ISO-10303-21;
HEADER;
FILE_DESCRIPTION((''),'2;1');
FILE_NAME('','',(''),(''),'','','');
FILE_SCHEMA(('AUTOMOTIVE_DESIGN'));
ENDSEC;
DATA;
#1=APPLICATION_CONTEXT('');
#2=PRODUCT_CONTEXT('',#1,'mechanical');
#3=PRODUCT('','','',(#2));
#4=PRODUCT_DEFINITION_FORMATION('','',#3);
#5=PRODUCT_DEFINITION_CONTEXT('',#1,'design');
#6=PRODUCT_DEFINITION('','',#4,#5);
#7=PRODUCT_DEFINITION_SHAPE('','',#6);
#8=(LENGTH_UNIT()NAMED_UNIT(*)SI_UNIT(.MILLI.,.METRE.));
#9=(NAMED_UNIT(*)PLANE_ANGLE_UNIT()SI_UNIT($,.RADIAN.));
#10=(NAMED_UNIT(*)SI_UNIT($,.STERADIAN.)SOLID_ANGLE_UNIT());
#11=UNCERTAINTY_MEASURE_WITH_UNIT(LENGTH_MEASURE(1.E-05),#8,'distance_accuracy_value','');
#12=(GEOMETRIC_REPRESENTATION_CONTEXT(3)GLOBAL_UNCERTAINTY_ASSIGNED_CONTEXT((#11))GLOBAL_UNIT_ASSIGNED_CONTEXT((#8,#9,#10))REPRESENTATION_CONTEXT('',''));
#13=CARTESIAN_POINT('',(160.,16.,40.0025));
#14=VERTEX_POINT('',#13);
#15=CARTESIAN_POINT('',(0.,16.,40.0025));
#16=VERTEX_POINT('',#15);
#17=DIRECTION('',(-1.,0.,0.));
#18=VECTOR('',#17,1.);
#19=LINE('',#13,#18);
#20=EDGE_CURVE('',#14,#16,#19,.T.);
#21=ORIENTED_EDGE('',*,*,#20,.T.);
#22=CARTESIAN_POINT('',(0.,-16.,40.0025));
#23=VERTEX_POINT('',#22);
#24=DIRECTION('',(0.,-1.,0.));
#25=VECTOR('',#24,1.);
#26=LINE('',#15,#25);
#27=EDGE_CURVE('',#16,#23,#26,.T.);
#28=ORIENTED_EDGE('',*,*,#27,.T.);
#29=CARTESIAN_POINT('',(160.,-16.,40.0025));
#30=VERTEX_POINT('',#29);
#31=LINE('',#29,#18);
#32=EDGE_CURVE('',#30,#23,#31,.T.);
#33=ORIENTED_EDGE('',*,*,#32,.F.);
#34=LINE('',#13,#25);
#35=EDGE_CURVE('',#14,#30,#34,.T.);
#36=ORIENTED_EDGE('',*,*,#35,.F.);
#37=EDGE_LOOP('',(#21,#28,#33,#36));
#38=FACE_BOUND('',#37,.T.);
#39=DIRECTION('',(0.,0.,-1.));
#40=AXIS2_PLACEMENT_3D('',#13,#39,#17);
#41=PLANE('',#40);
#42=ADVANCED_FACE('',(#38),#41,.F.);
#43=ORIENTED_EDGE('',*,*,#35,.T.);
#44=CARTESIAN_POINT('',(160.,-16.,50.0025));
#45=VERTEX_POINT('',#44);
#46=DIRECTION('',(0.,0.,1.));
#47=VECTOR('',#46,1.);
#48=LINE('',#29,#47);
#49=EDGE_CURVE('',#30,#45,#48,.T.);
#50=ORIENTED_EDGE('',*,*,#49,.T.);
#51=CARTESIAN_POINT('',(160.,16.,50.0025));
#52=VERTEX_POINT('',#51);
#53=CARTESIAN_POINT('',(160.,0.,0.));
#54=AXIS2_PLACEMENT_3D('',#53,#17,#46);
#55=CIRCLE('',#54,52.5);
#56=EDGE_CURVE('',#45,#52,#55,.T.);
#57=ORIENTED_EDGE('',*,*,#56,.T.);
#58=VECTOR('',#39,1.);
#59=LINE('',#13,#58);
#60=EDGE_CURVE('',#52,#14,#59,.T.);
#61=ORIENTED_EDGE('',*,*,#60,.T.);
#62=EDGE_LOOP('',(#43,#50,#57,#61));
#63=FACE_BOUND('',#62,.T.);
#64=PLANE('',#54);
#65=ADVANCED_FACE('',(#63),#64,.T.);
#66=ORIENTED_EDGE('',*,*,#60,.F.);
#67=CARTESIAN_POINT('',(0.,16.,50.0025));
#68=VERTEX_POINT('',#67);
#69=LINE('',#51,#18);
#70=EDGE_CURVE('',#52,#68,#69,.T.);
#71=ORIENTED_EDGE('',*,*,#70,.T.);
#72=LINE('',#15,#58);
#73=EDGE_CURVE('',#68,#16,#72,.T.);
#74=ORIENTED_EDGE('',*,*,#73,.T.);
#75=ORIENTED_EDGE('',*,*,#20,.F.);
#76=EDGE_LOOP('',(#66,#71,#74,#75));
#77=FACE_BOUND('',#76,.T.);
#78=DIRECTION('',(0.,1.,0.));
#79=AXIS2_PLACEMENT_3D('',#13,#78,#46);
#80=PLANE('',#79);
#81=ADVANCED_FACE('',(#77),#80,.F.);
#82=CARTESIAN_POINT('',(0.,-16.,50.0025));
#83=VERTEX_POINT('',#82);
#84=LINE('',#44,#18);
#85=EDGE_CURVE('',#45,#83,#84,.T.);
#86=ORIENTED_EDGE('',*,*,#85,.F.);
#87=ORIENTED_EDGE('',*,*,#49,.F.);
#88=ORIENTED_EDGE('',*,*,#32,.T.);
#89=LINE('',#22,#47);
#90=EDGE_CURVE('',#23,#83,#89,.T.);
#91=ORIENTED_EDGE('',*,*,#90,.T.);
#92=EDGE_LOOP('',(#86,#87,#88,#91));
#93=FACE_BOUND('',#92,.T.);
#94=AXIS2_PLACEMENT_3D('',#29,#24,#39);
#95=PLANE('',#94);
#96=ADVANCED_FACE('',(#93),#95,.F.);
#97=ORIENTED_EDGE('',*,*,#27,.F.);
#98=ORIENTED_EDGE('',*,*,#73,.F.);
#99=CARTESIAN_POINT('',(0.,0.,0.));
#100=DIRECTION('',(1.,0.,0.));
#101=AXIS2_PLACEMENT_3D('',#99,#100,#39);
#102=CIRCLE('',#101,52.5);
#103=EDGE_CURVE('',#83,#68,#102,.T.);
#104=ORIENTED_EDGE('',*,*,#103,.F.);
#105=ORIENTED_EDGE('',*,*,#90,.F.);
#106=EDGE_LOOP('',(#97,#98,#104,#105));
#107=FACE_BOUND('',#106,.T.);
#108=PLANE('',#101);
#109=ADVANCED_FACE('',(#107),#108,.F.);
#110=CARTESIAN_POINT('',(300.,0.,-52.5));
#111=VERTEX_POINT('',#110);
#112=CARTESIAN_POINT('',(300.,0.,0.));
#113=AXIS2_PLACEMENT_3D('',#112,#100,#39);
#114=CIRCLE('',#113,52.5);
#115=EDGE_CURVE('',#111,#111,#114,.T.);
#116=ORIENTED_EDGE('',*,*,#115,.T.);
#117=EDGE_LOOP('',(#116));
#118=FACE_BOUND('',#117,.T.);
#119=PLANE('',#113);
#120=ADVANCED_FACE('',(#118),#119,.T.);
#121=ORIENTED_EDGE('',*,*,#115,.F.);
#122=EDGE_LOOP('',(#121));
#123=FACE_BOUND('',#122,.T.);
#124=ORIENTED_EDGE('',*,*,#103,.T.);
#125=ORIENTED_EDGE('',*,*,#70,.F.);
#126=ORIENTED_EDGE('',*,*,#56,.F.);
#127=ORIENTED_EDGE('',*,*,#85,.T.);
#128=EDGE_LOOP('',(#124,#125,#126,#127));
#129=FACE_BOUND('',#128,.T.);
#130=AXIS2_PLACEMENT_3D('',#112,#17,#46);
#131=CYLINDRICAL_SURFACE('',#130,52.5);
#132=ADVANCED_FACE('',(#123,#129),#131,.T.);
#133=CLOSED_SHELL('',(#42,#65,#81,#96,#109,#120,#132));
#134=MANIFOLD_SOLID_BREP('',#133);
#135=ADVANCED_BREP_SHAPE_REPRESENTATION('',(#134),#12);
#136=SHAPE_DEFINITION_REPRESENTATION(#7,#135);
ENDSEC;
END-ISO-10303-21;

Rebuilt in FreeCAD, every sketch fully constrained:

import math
import FreeCAD as App
import Part
import Sketcher
Q = App.Units.Quantity

doc = App.newDocument("Part")
body = doc.addObject("PartDesign::Body", "Body")

# Sketch on YZ plane
sketch1 = body.newObject("Sketcher::SketchObject", "Sketch")
sketch1.AttachmentSupport = (doc.getObject("YZ_Plane"), [""])
sketch1.MapMode = "FlatFace"
sketch1.addGeometry(Part.Circle(App.Vector(0, 0, 0), App.Vector(0, 0, 1), 52), False)
sketch1.addConstraint(Sketcher.Constraint("Coincident", 0, 3, -1, 1))
sketch1.addConstraint(Sketcher.Constraint("Diameter", 0, Q("105 mm")))
pad1 = body.newObject("PartDesign::Pad", "Pad")
pad1.Profile = sketch1
pad1.Length = 300

# Sketch on YZ plane
sketch2 = body.newObject("Sketcher::SketchObject", "Sketch001")
sketch2.AttachmentSupport = (doc.getObject("YZ_Plane"), [""])
sketch2.MapMode = "FlatFace"
sketch2.addGeometry(Part.LineSegment(App.Vector(16, 40, 0), App.Vector(-16, 40, 0)), False)
sketch2.addGeometry(Part.LineSegment(App.Vector(-16, 40, 0), App.Vector(-16, 50, 0)), False)
sketch2.addGeometry(Part.ArcOfCircle(Part.Circle(App.Vector(0, 0, 0), App.Vector(0, 0, 1), 53), math.radians(72), math.radians(108)), False)
sketch2.addGeometry(Part.LineSegment(App.Vector(16, 50, 0), App.Vector(16, 40, 0)), False)
sketch2.addConstraint(Sketcher.Constraint("Coincident", 0, 2, 1, 1))
sketch2.addConstraint(Sketcher.Constraint("Coincident", 1, 2, 2, 2))
sketch2.addConstraint(Sketcher.Constraint("Coincident", 2, 1, 3, 1))
sketch2.addConstraint(Sketcher.Constraint("Coincident", 3, 2, 0, 1))
sketch2.addConstraint(Sketcher.Constraint("Horizontal", 0))
sketch2.addConstraint(Sketcher.Constraint("Vertical", 1))
sketch2.addConstraint(Sketcher.Constraint("Vertical", 3))
sketch2.addConstraint(Sketcher.Constraint("Coincident", 2, 3, -1, 1))
sketch2.addConstraint(Sketcher.Constraint("Horizontal", 1, 2, 2, 1))
sketch2.addConstraint(Sketcher.Constraint("Radius", 2, Q("52.5 mm")))
sketch2.addConstraint(Sketcher.Constraint("DistanceX", 0, 2, 0, 1, Q("32 mm")))
sketch2.addConstraint(Sketcher.Constraint("DistanceY", 1, 1, 1, 2, Q("10 mm")))
pocket1 = body.newObject("PartDesign::Pocket", "Pocket")
pocket1.Profile = sketch2
pocket1.Length = 160
pocket1.Reversed = True

doc.recompute()
